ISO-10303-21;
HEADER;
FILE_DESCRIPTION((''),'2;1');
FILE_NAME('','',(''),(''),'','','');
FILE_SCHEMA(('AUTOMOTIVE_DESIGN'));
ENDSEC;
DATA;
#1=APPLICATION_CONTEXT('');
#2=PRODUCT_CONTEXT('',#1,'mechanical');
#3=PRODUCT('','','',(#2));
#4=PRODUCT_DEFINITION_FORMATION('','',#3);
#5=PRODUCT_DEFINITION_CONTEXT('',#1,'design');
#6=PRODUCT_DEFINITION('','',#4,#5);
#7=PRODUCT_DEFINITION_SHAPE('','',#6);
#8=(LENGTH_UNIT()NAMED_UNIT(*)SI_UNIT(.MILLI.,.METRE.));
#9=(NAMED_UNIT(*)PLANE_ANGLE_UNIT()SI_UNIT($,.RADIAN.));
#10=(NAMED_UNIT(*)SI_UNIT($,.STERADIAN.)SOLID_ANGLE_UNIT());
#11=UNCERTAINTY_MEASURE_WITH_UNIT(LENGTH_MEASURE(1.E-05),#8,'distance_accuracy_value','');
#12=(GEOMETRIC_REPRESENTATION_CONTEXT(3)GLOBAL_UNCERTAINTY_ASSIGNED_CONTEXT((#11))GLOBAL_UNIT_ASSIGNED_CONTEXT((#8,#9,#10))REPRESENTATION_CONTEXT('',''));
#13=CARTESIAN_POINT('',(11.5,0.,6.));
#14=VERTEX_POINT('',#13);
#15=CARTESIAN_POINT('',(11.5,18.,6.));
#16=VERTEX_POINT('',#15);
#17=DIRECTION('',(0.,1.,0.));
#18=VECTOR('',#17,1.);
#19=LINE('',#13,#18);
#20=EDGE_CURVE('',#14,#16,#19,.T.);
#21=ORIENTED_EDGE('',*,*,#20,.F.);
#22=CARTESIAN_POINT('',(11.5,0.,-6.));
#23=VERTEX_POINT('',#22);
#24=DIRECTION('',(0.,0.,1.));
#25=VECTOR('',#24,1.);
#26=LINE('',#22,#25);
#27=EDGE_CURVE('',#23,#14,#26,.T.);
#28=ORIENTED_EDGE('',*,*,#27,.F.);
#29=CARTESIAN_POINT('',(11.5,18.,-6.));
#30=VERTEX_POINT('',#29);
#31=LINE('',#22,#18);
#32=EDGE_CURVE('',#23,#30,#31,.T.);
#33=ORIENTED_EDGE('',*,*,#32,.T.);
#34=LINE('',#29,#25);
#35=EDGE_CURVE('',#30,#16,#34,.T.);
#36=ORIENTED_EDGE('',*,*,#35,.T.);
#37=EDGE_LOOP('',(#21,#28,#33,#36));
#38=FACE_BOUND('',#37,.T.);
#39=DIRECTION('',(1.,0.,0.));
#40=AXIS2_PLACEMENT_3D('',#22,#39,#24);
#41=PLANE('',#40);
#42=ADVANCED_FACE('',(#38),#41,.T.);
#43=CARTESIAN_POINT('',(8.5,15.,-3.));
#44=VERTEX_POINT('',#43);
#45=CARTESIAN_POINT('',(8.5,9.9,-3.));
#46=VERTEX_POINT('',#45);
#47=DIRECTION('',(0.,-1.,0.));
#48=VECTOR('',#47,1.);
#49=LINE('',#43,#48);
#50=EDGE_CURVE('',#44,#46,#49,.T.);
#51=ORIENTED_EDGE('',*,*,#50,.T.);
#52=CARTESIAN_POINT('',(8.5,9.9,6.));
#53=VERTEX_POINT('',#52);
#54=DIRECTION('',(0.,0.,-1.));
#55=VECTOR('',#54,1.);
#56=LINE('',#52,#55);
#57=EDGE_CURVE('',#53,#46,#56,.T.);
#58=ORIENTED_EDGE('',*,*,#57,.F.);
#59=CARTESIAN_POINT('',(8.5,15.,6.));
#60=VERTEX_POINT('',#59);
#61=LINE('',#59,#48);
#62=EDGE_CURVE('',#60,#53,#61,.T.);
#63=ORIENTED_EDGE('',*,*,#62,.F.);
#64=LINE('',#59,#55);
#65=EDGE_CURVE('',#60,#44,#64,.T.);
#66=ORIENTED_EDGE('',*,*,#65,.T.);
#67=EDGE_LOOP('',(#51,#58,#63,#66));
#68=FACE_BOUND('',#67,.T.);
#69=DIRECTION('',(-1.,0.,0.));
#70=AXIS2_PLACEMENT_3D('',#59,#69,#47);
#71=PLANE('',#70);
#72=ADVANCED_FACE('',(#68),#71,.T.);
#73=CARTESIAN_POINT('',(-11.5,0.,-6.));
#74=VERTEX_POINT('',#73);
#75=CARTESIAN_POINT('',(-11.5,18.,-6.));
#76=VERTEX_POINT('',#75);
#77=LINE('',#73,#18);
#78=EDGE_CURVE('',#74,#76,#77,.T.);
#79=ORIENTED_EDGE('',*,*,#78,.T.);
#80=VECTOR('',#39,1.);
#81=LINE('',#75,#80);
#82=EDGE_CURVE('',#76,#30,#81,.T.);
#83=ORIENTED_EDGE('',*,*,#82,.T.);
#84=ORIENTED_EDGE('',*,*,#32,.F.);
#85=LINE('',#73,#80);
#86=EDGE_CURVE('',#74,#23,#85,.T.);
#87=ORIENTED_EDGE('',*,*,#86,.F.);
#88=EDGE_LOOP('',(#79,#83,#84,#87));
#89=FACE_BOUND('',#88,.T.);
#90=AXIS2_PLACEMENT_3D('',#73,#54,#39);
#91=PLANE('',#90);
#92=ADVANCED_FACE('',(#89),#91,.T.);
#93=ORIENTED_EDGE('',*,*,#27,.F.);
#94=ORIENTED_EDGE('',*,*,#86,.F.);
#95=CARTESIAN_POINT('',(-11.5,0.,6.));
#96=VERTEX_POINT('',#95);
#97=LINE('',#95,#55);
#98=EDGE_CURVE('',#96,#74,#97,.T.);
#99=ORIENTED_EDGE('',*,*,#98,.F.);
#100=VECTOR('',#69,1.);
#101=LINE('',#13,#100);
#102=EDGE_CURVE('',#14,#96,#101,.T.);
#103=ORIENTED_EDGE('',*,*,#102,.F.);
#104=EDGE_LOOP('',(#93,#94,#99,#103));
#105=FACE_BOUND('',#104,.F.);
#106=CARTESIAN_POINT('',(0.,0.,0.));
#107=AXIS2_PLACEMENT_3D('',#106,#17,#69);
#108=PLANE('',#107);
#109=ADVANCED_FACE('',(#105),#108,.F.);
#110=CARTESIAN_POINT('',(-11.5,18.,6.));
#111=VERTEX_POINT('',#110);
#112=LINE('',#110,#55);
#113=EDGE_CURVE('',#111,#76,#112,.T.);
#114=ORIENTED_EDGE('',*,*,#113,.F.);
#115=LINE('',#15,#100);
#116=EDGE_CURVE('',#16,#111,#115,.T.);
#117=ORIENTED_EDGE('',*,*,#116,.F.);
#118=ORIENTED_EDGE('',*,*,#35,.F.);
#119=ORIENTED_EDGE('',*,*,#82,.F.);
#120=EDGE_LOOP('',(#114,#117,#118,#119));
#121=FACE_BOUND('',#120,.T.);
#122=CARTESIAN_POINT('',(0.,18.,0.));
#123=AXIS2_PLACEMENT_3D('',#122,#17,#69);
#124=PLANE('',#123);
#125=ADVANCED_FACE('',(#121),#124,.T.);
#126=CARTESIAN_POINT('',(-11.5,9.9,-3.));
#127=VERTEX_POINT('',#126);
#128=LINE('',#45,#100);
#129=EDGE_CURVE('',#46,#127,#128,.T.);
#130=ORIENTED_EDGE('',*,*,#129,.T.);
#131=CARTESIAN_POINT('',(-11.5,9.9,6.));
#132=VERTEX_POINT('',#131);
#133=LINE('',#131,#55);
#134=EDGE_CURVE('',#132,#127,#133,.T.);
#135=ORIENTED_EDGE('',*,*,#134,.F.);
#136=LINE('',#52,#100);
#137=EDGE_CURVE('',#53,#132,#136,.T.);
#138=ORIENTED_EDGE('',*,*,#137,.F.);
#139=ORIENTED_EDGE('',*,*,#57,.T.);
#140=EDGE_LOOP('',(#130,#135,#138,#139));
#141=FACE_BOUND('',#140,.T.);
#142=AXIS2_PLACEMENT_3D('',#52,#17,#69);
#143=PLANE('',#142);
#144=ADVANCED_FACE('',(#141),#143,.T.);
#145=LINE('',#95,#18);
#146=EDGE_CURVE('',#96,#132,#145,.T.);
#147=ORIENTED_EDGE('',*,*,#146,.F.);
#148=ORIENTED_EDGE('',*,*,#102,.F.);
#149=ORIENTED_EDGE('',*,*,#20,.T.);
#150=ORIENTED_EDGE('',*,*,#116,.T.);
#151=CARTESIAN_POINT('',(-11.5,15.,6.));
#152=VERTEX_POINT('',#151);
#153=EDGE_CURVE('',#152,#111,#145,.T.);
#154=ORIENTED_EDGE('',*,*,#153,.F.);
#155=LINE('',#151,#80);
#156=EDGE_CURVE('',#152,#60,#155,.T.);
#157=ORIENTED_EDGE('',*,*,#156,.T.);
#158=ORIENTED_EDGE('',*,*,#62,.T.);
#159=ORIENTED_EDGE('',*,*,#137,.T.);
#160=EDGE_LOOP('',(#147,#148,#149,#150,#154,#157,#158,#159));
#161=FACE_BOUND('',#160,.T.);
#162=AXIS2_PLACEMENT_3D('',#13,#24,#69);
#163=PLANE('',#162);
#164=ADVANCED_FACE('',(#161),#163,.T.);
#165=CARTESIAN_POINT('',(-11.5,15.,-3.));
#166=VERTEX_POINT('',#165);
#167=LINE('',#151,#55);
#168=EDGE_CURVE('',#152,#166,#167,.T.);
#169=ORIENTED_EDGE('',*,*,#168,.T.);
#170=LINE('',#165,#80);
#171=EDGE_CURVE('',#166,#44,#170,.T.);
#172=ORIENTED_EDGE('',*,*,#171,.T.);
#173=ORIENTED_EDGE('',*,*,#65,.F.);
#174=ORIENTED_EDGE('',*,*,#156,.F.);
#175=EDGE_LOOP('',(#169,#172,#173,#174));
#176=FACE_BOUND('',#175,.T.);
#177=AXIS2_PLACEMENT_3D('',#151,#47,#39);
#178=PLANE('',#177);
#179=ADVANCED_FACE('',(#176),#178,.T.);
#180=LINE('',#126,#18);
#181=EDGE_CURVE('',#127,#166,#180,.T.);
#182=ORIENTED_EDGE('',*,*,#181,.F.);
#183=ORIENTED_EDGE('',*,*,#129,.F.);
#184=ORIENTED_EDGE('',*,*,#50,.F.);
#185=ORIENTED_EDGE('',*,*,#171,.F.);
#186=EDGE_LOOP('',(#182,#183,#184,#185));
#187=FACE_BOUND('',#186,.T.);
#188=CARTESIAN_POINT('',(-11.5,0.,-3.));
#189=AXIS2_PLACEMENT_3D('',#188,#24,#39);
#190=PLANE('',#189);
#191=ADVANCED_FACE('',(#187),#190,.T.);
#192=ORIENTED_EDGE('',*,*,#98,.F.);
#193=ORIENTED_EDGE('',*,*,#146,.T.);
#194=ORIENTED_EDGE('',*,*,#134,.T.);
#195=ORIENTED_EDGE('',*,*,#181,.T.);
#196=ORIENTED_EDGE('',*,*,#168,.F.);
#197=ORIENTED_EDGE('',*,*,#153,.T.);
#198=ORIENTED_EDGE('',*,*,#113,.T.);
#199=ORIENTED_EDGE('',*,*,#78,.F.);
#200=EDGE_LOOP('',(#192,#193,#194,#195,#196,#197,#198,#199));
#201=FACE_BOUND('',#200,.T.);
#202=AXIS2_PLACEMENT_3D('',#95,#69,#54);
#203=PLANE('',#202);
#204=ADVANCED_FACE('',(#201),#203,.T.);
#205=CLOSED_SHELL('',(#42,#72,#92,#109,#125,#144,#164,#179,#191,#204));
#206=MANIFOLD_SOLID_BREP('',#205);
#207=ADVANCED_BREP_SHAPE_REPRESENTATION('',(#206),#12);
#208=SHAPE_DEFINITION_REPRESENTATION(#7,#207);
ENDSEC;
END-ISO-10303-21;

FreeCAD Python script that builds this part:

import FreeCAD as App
import Part
import Sketcher
Q = App.Units.Quantity

doc = App.newDocument("Part")
body = doc.addObject("PartDesign::Body", "Body")

sketch1 = doc.addObject("Sketcher::SketchObject", "Sketch")
body.addObject(sketch1)
sketch1.AttachmentSupport = (doc.XZ_Plane, [""])
sketch1.MapMode = "FlatFace"
sketch1.addGeometry(Part.LineSegment(App.Vector(-11.5, 6, 0), App.Vector(11.5, 6, 0)), False)
sketch1.addGeometry(Part.LineSegment(App.Vector(11.5, 6, 0), App.Vector(11.5, -6, 0)), False)
sketch1.addGeometry(Part.LineSegment(App.Vector(11.5, -6, 0), App.Vector(-11.5, -6, 0)), False)
sketch1.addGeometry(Part.LineSegment(App.Vector(-11.5, -6, 0), App.Vector(-11.5, 6, 0)), False)
sketch1.addConstraint(Sketcher.Constraint("Coincident", 0, 2, 1, 1))
sketch1.addConstraint(Sketcher.Constraint("Coincident", 1, 2, 2, 1))
sketch1.addConstraint(Sketcher.Constraint("Coincident", 2, 2, 3, 1))
sketch1.addConstraint(Sketcher.Constraint("Coincident", 3, 2, 0, 1))
sketch1.addConstraint(Sketcher.Constraint("Horizontal", 0))
sketch1.addConstraint(Sketcher.Constraint("Vertical", 1))
sketch1.addConstraint(Sketcher.Constraint("Horizontal", 2))
sketch1.addConstraint(Sketcher.Constraint("Vertical", 3))
sketch1.addConstraint(Sketcher.Constraint("Symmetric", 0, 2, 2, 2, -1, 1))
sketch1.addConstraint(Sketcher.Constraint("DistanceX", 0, 1, 0, 2, Q("23 mm")))
sketch1.addConstraint(Sketcher.Constraint("DistanceY", 1, 2, 1, 1, Q("12 mm")))
pad1 = doc.addObject("PartDesign::Pad", "Pad")
body.addObject(pad1)
pad1.Profile = sketch1
pad1.Length = 18
pad1.Reversed = True

sketch2 = doc.addObject("Sketcher::SketchObject", "Sketch001")
body.addObject(sketch2)
sketch2.AttachmentSupport = (doc.XY_Plane, [""])
sketch2.MapMode = "FlatFace"
sketch2.AttachmentOffset = App.Placement(App.Vector(0, 0, 6), App.Rotation())
sketch2.addGeometry(Part.LineSegment(App.Vector(-11.5, 9.9, 0), App.Vector(8.5, 9.9, 0)), False)
sketch2.addGeometry(Part.LineSegment(App.Vector(8.5, 9.9, 0), App.Vector(8.5, 15, 0)), False)
sketch2.addGeometry(Part.LineSegment(App.Vector(8.5, 15, 0), App.Vector(-11.5, 15, 0)), False)
sketch2.addGeometry(Part.LineSegment(App.Vector(-11.5, 15, 0), App.Vector(-11.5, 9.9, 0)), False)
sketch2.addConstraint(Sketcher.Constraint("Coincident", 0, 2, 1, 1))
sketch2.addConstraint(Sketcher.Constraint("Coincident", 1, 2, 2, 1))
sketch2.addConstraint(Sketcher.Constraint("Coincident", 2, 2, 3, 1))
sketch2.addConstraint(Sketcher.Constraint("Coincident", 3, 2, 0, 1))
sketch2.addConstraint(Sketcher.Constraint("Horizontal", 0))
sketch2.addConstraint(Sketcher.Constraint("Vertical", 1))
sketch2.addConstraint(Sketcher.Constraint("Horizontal", 2))
sketch2.addConstraint(Sketcher.Constraint("Vertical", 3))
sketch2.addConstraint(Sketcher.Constraint("DistanceY", 1, 1, 1, 2, Q("5.1 mm")))
sketch2.addConstraint(Sketcher.Constraint("DistanceX", 0, 1, 0, 2, Q("20 mm")))
sketch2.addConstraint(Sketcher.Constraint("DistanceY", -1, 1, 1, 2, Q("15 mm")))
sketch2.addConstraint(Sketcher.Constraint("DistanceX", -1, 1, 0, 2, Q("8.5 mm")))
pocket1 = doc.addObject("PartDesign::Pocket", "Pocket")
body.addObject(pocket1)
pocket1.Profile = sketch2
pocket1.Length = 9

doc.recompute()
